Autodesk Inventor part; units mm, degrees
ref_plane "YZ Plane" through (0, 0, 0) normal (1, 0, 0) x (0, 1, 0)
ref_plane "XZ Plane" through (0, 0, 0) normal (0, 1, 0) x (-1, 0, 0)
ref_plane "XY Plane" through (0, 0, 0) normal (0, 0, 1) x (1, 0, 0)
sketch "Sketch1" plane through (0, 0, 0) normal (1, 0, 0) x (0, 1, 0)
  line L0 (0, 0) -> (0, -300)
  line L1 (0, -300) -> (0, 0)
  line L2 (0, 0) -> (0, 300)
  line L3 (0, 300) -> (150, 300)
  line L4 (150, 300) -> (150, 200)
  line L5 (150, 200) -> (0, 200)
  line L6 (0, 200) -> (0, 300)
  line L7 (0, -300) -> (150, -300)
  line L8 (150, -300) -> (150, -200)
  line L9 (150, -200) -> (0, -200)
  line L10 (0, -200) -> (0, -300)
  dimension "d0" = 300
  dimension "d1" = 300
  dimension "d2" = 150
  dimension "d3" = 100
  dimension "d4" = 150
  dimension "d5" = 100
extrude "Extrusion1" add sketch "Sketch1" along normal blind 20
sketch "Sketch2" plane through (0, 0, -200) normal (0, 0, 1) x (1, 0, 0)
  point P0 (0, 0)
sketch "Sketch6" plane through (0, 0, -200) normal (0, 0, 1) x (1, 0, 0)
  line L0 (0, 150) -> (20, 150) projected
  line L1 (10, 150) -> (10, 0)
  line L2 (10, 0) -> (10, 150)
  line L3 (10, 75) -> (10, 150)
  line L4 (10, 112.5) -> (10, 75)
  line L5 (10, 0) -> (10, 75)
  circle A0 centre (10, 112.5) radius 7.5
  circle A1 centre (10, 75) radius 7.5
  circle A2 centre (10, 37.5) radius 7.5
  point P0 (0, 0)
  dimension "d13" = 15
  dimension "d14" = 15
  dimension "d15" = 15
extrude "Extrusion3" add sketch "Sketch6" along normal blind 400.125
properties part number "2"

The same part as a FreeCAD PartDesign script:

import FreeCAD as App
import Part
import Sketcher
from FreeCAD import Vector

doc = App.newDocument("Part")
body = doc.addObject("PartDesign::Body", "Body")
body.AllowCompound = True

# Sketch on YZ plane
sketch1 = body.newObject("Sketcher::SketchObject", "Sketch")
sketch1.AttachmentSupport = (doc.getObject("YZ_Plane"), [""])
sketch1.MapMode = "FlatFace"
sketch1.addGeometry([
    Part.LineSegment(Vector(150, -200, 0), Vector(0, -200, 0)),  # 0
    Part.LineSegment(Vector(0, -200, 0), Vector(0, -300, 0)),  # 1
    Part.LineSegment(Vector(0, -300, 0), Vector(150, -300, 0)),  # 2
    Part.LineSegment(Vector(150, -300, 0), Vector(150, -200, 0)),  # 3
    Part.LineSegment(Vector(0, 300, 0), Vector(0, 200, 0)),  # 4
    Part.LineSegment(Vector(0, 200, 0), Vector(150, 200, 0)),  # 5
    Part.LineSegment(Vector(150, 200, 0), Vector(150, 300, 0)),  # 6
    Part.LineSegment(Vector(150, 300, 0), Vector(0, 300, 0)),  # 7
], False)
sketch1.addConstraint([
    Sketcher.Constraint("Coincident", 0, 2, 1, 1),
    Sketcher.Constraint("Coincident", 1, 2, 2, 1),
    Sketcher.Constraint("Coincident", 2, 2, 3, 1),
    Sketcher.Constraint("Coincident", 3, 2, 0, 1),
    Sketcher.Constraint("Coincident", 4, 2, 5, 1),
    Sketcher.Constraint("Coincident", 5, 2, 6, 1),
    Sketcher.Constraint("Coincident", 6, 2, 7, 1),
    Sketcher.Constraint("Coincident", 7, 2, 4, 1),
    Sketcher.Constraint("Horizontal", 0),
    Sketcher.Constraint("Vertical", 1),
    Sketcher.Constraint("Horizontal", 2),
    Sketcher.Constraint("Vertical", 3),
    Sketcher.Constraint("Vertical", 4),
    Sketcher.Constraint("Horizontal", 5),
    Sketcher.Constraint("Vertical", 6),
    Sketcher.Constraint("Horizontal", 7),
    Sketcher.Constraint("Symmetric", 0, 2, 4, 2, -1, 1),
    Sketcher.Constraint("Symmetric", 2, 2, 6, 2, -1),
    Sketcher.Constraint("PointOnObject", 0, 2, -2),
    Sketcher.Constraint("DistanceX", 0, 2, 0, 1, 150.0),
    Sketcher.Constraint("DistanceY", 1, 2, 1, 1, 100.0),
    Sketcher.Constraint("DistanceY", 1, 2, -1, 1, 300.0),
])
pad1 = body.newObject("PartDesign::Pad", "Pad")
pad1.Profile = sketch1
pad1.Length = 20

# Sketch on XY plane
sketch2 = body.newObject("Sketcher::SketchObject", "Sketch001")
sketch2.AttachmentSupport = (doc.getObject("XY_Plane"), [""])
sketch2.MapMode = "FlatFace"
sketch2.AttachmentOffset = App.Placement(Vector(0, 0, -200), App.Rotation())
sketch2.addGeometry([
    Part.Circle(Vector(10, 112, 0), Vector(0, 0, 1), 8),
    Part.Circle(Vector(10, 38, 0), Vector(0, 0, 1), 8),
    Part.Circle(Vector(10, 75, 0), Vector(0, 0, 1), 8),
], False)
sketch2.addConstraint([
    Sketcher.Constraint("Equal", 0, 1),
    Sketcher.Constraint("Equal", 1, 2),
    Sketcher.Constraint("Vertical", 0, 3, 1, 3),
    Sketcher.Constraint("Vertical", 1, 3, 2, 3),
    Sketcher.Constraint("Diameter", 0, 15.0),
    Sketcher.Constraint("DistanceX", -1, 1, 0, 3, 10.0),
    Sketcher.Constraint("DistanceY", -1, 1, 2, 3, 75.0),
    Sketcher.Constraint("DistanceY", 1, 3, 0, 3, 75.0),
    Sketcher.Constraint("DistanceY", -1, 1, 0, 3, 112.5),
])
pad2 = body.newObject("PartDesign::Pad", "Pad001")
pad2.Profile = sketch2
pad2.Length = 400.125

doc.recompute()
